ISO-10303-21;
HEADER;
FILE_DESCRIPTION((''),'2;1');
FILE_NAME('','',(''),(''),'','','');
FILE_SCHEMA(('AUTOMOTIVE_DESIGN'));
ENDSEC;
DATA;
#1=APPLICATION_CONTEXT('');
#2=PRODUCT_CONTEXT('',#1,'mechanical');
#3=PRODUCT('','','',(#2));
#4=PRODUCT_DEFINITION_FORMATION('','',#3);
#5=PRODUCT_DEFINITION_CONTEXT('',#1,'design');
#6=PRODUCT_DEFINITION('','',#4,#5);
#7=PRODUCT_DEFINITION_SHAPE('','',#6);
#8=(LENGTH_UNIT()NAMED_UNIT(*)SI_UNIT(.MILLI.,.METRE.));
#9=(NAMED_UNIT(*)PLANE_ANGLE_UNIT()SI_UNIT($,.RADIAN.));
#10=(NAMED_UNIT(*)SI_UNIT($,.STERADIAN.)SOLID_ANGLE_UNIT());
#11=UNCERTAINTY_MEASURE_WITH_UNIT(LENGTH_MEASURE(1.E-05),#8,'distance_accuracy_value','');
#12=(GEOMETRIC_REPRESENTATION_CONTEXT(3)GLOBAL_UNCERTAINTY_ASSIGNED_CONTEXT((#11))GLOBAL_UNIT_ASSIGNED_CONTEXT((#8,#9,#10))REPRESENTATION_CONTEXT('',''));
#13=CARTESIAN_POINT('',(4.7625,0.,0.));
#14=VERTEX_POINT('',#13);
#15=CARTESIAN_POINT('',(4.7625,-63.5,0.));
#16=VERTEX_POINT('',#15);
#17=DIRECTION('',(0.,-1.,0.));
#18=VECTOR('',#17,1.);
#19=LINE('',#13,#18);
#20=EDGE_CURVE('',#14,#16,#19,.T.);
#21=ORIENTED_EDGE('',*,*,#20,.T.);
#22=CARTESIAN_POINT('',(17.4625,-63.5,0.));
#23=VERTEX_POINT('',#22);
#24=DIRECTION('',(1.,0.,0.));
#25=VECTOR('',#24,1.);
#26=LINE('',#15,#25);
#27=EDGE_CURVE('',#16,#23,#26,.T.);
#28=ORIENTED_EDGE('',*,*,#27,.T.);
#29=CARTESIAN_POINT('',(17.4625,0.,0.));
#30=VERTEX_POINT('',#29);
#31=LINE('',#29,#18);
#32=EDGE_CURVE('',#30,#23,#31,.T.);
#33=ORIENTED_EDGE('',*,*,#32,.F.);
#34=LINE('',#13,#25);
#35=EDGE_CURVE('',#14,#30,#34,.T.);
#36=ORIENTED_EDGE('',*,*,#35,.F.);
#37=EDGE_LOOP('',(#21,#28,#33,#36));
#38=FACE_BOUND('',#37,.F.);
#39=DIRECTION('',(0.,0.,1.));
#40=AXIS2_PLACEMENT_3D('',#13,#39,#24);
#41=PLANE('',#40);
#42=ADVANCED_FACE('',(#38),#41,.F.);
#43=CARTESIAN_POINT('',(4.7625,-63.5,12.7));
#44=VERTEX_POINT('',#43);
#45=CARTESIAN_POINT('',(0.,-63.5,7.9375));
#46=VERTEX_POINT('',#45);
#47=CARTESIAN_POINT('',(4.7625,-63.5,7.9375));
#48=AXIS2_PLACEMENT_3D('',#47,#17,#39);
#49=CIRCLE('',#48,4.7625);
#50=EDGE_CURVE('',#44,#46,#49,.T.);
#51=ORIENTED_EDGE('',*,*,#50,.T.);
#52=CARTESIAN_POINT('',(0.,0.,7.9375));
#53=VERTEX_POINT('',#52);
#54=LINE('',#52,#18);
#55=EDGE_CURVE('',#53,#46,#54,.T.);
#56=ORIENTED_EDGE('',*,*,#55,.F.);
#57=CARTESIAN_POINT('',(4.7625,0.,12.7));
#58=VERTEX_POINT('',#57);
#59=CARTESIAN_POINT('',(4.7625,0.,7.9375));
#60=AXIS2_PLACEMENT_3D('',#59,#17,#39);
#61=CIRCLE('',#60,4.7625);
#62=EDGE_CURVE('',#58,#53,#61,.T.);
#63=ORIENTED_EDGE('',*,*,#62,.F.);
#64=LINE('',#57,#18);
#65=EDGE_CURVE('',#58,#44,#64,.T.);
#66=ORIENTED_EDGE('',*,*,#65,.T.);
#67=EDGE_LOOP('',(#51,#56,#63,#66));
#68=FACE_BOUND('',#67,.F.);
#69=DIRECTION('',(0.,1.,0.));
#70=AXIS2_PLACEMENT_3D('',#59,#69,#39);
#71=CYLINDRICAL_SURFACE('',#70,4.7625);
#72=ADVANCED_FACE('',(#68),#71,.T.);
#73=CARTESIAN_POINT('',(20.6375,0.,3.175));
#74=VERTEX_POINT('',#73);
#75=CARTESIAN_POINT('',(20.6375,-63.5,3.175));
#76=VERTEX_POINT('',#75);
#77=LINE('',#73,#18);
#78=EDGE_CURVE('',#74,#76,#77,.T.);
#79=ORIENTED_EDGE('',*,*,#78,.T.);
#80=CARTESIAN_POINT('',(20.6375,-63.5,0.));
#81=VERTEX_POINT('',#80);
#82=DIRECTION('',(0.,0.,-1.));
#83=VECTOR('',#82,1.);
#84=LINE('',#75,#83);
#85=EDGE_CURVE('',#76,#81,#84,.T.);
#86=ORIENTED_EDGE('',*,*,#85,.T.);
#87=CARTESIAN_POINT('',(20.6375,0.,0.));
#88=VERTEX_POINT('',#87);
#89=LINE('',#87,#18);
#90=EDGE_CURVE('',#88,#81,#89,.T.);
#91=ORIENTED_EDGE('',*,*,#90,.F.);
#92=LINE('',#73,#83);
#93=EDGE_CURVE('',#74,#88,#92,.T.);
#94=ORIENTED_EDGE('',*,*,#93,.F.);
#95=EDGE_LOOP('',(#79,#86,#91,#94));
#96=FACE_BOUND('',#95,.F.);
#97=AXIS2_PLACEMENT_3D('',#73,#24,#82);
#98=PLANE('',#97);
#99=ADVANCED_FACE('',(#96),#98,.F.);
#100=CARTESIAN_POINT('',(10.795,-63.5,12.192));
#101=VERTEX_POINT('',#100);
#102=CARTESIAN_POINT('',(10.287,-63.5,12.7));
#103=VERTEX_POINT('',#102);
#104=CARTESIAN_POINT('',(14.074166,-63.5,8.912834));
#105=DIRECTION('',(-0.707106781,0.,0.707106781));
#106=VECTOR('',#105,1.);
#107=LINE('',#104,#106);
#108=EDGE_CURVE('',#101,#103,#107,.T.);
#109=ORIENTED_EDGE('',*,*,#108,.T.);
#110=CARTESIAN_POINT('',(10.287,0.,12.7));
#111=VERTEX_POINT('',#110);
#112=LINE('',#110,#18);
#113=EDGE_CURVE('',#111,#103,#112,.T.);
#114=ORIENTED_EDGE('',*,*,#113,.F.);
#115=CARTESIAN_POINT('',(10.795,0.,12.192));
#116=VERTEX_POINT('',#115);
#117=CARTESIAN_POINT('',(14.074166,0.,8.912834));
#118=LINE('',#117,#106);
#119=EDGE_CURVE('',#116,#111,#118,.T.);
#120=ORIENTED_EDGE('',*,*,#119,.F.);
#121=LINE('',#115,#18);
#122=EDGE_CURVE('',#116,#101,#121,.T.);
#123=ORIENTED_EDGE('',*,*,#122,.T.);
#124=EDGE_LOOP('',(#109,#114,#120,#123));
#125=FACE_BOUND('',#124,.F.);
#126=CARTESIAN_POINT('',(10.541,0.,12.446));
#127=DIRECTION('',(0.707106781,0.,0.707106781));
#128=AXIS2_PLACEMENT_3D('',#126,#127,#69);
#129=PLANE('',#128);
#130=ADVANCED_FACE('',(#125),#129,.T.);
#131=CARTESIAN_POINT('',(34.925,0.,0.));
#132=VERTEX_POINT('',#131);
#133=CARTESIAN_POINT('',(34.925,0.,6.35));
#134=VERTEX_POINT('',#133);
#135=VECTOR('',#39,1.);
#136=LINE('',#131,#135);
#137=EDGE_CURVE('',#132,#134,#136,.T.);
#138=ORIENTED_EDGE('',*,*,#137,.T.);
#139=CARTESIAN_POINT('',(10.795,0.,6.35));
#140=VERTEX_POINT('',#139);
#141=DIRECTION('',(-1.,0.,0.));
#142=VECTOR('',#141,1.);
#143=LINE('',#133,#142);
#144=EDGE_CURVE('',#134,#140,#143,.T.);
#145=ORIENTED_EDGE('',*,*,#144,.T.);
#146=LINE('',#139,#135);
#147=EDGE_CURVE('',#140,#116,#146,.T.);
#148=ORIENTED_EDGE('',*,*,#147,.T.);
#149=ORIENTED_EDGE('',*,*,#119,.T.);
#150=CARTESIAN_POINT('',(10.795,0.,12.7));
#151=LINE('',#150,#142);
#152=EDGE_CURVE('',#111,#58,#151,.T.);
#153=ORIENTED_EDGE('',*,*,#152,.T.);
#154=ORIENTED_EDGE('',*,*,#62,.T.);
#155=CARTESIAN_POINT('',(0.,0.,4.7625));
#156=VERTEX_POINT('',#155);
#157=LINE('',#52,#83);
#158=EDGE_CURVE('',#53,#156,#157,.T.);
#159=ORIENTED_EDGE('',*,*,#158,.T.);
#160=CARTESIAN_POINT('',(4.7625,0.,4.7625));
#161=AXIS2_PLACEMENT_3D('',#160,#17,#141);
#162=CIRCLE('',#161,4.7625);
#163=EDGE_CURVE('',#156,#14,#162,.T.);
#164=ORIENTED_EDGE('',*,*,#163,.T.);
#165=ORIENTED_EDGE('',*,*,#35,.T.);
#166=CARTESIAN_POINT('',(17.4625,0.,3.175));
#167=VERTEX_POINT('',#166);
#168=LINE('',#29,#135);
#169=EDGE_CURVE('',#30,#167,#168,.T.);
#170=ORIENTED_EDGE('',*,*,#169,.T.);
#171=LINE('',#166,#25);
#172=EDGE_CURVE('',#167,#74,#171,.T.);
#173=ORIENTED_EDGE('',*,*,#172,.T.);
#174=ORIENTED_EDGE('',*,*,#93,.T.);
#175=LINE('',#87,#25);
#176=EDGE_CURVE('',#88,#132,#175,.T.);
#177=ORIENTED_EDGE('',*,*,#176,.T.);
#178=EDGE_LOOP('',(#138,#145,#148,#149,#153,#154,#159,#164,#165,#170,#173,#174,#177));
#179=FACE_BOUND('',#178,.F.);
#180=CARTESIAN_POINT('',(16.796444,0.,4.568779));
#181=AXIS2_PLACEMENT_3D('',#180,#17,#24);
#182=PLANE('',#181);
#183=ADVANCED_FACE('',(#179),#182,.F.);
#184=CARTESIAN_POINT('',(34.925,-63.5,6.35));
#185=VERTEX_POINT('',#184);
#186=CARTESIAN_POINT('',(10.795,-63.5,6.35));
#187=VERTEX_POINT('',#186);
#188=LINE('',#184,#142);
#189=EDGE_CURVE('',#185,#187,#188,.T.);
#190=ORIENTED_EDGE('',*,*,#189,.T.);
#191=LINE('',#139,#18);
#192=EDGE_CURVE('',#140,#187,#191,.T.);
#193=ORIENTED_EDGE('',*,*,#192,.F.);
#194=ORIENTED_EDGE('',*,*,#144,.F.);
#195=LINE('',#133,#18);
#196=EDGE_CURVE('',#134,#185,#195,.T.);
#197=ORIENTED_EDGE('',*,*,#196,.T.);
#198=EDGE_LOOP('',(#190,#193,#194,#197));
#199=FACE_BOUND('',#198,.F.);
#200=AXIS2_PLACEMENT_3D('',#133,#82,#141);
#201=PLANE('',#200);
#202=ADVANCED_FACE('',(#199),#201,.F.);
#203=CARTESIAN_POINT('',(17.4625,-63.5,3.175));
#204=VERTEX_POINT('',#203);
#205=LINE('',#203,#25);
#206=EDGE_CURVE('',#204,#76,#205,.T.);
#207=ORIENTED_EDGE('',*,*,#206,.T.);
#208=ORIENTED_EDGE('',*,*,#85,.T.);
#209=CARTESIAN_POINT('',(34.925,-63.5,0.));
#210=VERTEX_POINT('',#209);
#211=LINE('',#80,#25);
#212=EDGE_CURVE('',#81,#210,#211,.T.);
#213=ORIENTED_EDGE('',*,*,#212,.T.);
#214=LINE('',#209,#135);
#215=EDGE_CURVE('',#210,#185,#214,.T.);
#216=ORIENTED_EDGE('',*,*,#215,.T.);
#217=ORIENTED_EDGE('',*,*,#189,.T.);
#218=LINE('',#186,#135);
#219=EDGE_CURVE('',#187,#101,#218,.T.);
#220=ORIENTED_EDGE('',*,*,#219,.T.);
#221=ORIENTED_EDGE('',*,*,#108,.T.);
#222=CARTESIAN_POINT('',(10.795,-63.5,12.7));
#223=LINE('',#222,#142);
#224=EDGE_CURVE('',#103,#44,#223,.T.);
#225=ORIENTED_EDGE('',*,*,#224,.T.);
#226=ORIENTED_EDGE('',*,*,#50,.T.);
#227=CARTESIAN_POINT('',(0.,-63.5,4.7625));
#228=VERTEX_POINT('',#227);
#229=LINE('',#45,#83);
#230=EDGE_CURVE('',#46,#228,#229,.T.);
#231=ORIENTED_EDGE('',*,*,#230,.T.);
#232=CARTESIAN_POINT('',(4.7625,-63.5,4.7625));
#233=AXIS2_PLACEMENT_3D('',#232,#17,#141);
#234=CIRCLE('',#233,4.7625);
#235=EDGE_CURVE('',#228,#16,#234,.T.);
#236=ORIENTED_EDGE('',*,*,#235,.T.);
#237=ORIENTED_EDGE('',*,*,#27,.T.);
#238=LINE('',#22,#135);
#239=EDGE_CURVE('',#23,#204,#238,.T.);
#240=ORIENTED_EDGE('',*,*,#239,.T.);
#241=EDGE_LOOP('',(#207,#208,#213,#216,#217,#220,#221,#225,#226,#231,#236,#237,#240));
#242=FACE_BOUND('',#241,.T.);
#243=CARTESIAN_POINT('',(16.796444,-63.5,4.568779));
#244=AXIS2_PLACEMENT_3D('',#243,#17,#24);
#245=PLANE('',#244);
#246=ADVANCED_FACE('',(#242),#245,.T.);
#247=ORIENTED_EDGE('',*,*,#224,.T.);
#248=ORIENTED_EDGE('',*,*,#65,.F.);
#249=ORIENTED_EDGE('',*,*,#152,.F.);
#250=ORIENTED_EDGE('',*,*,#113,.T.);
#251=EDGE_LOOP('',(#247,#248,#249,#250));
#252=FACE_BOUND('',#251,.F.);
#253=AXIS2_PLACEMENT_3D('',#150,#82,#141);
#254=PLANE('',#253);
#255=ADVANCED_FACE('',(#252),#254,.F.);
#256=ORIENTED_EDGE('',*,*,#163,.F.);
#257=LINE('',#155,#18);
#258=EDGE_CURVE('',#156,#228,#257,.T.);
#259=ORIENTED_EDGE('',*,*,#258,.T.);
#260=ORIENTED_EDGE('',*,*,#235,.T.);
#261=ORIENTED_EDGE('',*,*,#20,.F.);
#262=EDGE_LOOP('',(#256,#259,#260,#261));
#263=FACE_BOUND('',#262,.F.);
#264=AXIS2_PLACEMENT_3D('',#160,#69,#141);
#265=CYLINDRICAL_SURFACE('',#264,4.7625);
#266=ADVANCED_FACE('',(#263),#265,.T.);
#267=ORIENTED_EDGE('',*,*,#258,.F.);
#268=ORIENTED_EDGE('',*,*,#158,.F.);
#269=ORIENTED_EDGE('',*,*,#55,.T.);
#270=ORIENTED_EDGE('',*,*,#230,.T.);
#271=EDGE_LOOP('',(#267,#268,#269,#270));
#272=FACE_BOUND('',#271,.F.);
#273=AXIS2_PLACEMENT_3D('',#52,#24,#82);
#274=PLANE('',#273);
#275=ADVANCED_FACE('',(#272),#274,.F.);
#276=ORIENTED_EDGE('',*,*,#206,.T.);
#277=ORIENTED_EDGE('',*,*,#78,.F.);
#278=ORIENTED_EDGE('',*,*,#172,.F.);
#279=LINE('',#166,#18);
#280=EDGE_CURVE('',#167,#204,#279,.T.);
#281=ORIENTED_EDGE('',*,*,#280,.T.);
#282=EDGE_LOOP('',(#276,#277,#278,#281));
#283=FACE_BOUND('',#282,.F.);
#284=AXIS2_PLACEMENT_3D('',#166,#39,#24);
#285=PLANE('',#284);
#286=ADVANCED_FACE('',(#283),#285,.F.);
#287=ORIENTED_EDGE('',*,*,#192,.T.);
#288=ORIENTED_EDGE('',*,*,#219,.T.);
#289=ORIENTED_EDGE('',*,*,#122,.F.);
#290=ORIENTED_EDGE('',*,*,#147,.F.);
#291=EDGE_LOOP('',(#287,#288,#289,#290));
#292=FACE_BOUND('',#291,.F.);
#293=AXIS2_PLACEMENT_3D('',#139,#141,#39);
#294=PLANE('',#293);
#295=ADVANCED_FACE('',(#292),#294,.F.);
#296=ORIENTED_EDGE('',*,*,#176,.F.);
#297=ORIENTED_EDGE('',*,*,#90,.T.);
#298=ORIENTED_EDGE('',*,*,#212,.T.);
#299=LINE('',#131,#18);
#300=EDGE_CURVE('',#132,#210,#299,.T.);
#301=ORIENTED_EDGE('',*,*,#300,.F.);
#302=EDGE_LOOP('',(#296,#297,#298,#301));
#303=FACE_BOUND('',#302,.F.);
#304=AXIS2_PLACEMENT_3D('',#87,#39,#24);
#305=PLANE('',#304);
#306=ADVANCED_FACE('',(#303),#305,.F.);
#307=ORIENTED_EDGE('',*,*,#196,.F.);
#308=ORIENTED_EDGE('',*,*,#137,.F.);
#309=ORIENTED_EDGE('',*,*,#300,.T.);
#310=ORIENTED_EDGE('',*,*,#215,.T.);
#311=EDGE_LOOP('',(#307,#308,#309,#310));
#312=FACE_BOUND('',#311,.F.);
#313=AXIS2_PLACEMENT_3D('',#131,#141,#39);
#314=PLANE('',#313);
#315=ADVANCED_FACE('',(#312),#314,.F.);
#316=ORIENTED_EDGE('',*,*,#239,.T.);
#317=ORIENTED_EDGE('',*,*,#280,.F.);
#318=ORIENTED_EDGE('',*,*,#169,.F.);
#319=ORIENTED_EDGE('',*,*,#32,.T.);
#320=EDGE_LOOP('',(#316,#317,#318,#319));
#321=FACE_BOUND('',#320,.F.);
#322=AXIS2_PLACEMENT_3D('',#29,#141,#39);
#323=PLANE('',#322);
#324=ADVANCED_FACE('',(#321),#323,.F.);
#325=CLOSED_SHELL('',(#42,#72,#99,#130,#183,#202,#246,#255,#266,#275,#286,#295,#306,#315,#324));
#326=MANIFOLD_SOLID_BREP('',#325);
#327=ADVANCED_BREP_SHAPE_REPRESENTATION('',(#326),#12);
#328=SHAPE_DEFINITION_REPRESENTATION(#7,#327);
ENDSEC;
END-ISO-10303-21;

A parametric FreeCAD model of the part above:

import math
import FreeCAD as App
import Part
import Sketcher

V = App.Vector
Q = App.Units.Quantity


def edges_at(feature, points):
    """Names of the edges that pass closest to the given points."""
    edges = feature.Shape.Edges
    near = lambda p: min(range(len(edges)), key=lambda i: edges[i].distToShape(Part.Vertex(*p))[0])
    return sorted({f"Edge{near(p) + 1}" for p in points})

doc = App.newDocument("Part")
body = doc.addObject("PartDesign::Body", "Body")

# Sketch on XZ plane
sketch1 = body.newObject("Sketcher::SketchObject", "Sketch")
sketch1.AttachmentSupport = (doc.getObject("XZ_Plane"), [""])
sketch1.MapMode = "FlatFace"
sketch1.addGeometry([
    Part.ArcOfCircle(Part.Circle(V(4.8, 4.8, 0), V(0, 0, 1), 4.8), math.radians(180), math.radians(270)),  # 0
    Part.LineSegment(V(4.8, 0, 0), V(17.5, 0, 0)),  # 1
    Part.LineSegment(V(17.5, 0, 0), V(17.5, 3.2, 0)),  # 2
    Part.LineSegment(V(17.5, 3.2, 0), V(20.6, 3.2, 0)),  # 3
    Part.LineSegment(V(20.6, 3.2, 0), V(20.6, 0, 0)),  # 4
    Part.LineSegment(V(20.6, 0, 0), V(34.9, 0, 0)),  # 5
    Part.LineSegment(V(34.9, 0, 0), V(34.9, 6.3, 0)),  # 6
    Part.LineSegment(V(34.9, 6.3, 0), V(10.8, 6.3, 0)),  # 7
    Part.LineSegment(V(10.8, 6.3, 0), V(10.8, 12.7, 0)),  # 8
    Part.LineSegment(V(10.8, 12.7, 0), V(4.8, 12.7, 0)),  # 9
    Part.ArcOfCircle(Part.Circle(V(4.8, 7.9, 0), V(0, 0, 1), 4.8), math.radians(90), math.radians(180)),  # 10
    Part.LineSegment(V(0, 7.9, 0), V(0, 4.8, 0)),  # 11
], False)
sketch1.addConstraint([
    Sketcher.Constraint("Tangent", 0, 2, 1, 1),
    Sketcher.Constraint("Coincident", 1, 2, 2, 1),
    Sketcher.Constraint("Coincident", 2, 2, 3, 1),
    Sketcher.Constraint("Coincident", 3, 2, 4, 1),
    Sketcher.Constraint("Coincident", 4, 2, 5, 1),
    Sketcher.Constraint("Coincident", 5, 2, 6, 1),
    Sketcher.Constraint("Coincident", 6, 2, 7, 1),
    Sketcher.Constraint("Coincident", 7, 2, 8, 1),
    Sketcher.Constraint("Coincident", 8, 2, 9, 1),
    Sketcher.Constraint("Tangent", 9, 2, 10, 1),
    Sketcher.Constraint("Tangent", 10, 2, 11, 1),
    Sketcher.Constraint("Tangent", 11, 2, 0, 1),
    Sketcher.Constraint("Horizontal", 1),
    Sketcher.Constraint("Vertical", 2),
    Sketcher.Constraint("Horizontal", 3),
    Sketcher.Constraint("Vertical", 4),
    Sketcher.Constraint("Horizontal", 5),
    Sketcher.Constraint("Vertical", 6),
    Sketcher.Constraint("Horizontal", 7),
    Sketcher.Constraint("Vertical", 8),
    Sketcher.Constraint("Horizontal", 9),
    Sketcher.Constraint("Vertical", 11),
    Sketcher.Constraint("Equal", 0, 10),
    Sketcher.Constraint("PointOnObject", 0, 2, -1),
    Sketcher.Constraint("PointOnObject", 4, 2, -1),
    Sketcher.Constraint("PointOnObject", 10, 2, -2),
    Sketcher.Constraint("Equal", 3, 2),
    Sketcher.Constraint("Equal", 6, 8),
    Sketcher.Constraint("Equal", 4, 11),
    Sketcher.Constraint("DistanceX", 1, 1, 1, 2, Q("0.5 in")),
    Sketcher.Constraint("Radius", 0, Q("0.1875 in")),
    Sketcher.Constraint("DistanceX", 7, 2, 7, 1, Q("0.95 in")),
    Sketcher.Constraint("DistanceY", 6, 1, 6, 2, Q("0.25 in")),
    Sketcher.Constraint("DistanceX", 5, 1, 5, 2, Q("0.5625 in")),
])
pad1 = body.newObject("PartDesign::Pad", "Pad")
pad1.Profile = sketch1
pad1.Length = Q("2.5 in")
doc.recompute()

chamfer = body.newObject("PartDesign::Chamfer", "Chamfer")
chamfer.Base = (pad1, edges_at(pad1, [(10.795, -31.75, 12.7)]))
chamfer.Size = Q("0.02 in")

doc.recompute()
